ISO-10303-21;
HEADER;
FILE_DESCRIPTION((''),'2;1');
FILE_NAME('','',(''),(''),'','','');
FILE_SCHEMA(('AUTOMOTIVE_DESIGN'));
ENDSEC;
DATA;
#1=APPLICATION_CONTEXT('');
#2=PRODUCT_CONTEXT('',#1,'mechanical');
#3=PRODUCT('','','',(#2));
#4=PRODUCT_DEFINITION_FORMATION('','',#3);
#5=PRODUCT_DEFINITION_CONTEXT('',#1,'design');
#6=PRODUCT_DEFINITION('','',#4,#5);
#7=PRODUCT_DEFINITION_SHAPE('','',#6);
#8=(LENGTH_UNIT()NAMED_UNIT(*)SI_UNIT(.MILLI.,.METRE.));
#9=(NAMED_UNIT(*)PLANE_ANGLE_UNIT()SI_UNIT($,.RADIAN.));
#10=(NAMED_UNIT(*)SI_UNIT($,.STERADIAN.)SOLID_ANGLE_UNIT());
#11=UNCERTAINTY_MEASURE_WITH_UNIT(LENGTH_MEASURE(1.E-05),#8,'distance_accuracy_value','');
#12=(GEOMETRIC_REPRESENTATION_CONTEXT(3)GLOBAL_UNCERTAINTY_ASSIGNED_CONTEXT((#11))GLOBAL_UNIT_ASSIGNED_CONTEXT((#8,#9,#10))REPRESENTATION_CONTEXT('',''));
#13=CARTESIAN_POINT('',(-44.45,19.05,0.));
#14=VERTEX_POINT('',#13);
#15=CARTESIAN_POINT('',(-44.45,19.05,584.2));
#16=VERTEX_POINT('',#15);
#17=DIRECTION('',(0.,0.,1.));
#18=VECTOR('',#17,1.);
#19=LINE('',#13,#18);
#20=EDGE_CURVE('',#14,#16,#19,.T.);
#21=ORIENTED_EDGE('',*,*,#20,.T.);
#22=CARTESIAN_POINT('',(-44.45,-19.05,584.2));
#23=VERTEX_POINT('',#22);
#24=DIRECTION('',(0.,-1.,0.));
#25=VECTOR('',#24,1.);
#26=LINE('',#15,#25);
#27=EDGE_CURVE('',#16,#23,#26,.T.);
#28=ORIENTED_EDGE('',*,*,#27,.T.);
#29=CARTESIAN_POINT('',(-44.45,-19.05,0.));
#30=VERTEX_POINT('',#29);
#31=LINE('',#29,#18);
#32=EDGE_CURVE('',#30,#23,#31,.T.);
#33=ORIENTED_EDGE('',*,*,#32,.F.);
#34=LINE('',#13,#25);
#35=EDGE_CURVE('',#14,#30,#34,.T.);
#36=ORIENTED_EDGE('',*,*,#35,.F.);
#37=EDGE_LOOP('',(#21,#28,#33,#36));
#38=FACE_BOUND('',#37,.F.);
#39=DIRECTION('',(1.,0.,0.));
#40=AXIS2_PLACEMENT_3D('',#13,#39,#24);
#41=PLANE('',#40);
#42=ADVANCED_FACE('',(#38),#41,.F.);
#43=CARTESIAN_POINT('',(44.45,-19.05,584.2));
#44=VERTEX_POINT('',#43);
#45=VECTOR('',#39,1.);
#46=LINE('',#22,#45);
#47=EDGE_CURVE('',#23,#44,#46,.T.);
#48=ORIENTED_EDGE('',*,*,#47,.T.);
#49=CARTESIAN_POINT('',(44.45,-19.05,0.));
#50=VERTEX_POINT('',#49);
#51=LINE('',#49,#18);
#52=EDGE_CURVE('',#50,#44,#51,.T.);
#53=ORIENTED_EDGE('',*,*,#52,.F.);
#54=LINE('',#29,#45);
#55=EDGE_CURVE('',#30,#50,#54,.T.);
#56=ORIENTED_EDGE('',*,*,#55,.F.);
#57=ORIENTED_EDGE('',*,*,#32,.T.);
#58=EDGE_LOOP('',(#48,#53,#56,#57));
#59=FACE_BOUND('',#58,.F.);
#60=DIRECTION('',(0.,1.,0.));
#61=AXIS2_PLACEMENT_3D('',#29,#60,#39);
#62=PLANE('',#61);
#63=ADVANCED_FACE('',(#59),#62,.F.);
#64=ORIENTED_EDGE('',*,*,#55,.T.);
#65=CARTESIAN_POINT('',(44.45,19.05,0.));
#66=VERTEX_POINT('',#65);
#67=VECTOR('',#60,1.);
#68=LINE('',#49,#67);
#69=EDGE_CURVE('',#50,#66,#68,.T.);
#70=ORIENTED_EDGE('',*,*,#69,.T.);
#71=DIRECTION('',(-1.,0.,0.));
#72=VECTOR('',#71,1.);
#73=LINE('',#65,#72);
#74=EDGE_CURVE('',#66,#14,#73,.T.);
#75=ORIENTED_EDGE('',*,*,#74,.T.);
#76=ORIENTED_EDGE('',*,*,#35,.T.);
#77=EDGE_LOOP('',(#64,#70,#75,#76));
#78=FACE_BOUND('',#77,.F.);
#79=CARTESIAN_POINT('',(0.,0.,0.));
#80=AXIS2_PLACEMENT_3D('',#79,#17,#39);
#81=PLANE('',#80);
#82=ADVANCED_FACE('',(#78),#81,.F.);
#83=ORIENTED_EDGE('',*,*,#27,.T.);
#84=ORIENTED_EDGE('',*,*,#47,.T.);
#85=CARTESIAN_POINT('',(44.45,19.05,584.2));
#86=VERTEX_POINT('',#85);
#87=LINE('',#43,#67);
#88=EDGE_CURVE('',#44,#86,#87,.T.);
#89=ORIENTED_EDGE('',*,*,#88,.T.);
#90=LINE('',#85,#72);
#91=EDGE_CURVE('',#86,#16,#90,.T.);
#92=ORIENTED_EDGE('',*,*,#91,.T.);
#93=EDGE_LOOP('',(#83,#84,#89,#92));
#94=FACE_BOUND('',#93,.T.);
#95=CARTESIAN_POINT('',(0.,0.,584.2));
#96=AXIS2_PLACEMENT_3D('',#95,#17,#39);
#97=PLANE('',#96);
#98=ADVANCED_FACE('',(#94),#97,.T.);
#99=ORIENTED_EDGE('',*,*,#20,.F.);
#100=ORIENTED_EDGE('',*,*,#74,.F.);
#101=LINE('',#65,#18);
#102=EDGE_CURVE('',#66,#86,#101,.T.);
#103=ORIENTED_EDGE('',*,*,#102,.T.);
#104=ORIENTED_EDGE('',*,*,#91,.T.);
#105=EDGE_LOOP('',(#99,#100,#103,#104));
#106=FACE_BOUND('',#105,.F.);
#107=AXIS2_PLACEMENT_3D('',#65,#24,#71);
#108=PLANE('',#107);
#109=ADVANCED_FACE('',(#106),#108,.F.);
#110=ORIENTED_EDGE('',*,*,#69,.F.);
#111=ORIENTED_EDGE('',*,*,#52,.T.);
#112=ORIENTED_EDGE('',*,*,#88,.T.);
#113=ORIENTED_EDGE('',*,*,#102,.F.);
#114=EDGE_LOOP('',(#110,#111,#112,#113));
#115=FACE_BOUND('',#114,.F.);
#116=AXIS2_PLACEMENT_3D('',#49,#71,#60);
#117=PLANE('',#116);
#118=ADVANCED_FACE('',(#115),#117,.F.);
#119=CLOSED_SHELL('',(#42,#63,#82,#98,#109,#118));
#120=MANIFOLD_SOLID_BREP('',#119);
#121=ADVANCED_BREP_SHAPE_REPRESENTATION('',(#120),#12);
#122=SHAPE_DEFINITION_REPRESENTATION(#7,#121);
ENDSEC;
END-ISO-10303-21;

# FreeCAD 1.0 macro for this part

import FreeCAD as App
import Part
import Sketcher

V = App.Vector
Q = App.Units.Quantity


def add_polygon(sketch, points):
    """Adds a closed chain of lines whose ends are joined by coincident constraints."""
    first, n = sketch.GeometryCount, len(points)
    for a, b in zip(points, points[1:] + points[:1]):
        sketch.addGeometry(Part.LineSegment(App.Vector(*a, 0), App.Vector(*b, 0)), False)
    for i in range(n):
        sketch.addConstraint(Sketcher.Constraint("Coincident", first + i, 2, first + (i + 1) % n, 1))

doc = App.newDocument("Part")
body = doc.addObject("PartDesign::Body", "Body")

# Sketch on XY plane
sketch1 = doc.addObject("Sketcher::SketchObject", "Sketch")
body.addObject(sketch1)
sketch1.AttachmentSupport = (doc.XY_Plane, [""])
sketch1.MapMode = "FlatFace"
add_polygon(sketch1, [(-44, 19), (-44, -19), (44, -19), (44, 19)])  # lines 0-3
sketch1.addConstraint([
    Sketcher.Constraint("Vertical", 0),
    Sketcher.Constraint("Horizontal", 1),
    Sketcher.Constraint("Vertical", 2),
    Sketcher.Constraint("Horizontal", 3),
    Sketcher.Constraint("Symmetric", 0, 2, 2, 2, -1, 1),
    Sketcher.Constraint("DistanceX", 1, 1, 1, 2, Q("3.5 in")),
    Sketcher.Constraint("DistanceY", 0, 2, 0, 1, Q("1.5 in")),
])
pad1 = doc.addObject("PartDesign::Pad", "Pad")
body.addObject(pad1)
pad1.Profile = sketch1
pad1.Length = Q("23 in")

doc.recompute()
